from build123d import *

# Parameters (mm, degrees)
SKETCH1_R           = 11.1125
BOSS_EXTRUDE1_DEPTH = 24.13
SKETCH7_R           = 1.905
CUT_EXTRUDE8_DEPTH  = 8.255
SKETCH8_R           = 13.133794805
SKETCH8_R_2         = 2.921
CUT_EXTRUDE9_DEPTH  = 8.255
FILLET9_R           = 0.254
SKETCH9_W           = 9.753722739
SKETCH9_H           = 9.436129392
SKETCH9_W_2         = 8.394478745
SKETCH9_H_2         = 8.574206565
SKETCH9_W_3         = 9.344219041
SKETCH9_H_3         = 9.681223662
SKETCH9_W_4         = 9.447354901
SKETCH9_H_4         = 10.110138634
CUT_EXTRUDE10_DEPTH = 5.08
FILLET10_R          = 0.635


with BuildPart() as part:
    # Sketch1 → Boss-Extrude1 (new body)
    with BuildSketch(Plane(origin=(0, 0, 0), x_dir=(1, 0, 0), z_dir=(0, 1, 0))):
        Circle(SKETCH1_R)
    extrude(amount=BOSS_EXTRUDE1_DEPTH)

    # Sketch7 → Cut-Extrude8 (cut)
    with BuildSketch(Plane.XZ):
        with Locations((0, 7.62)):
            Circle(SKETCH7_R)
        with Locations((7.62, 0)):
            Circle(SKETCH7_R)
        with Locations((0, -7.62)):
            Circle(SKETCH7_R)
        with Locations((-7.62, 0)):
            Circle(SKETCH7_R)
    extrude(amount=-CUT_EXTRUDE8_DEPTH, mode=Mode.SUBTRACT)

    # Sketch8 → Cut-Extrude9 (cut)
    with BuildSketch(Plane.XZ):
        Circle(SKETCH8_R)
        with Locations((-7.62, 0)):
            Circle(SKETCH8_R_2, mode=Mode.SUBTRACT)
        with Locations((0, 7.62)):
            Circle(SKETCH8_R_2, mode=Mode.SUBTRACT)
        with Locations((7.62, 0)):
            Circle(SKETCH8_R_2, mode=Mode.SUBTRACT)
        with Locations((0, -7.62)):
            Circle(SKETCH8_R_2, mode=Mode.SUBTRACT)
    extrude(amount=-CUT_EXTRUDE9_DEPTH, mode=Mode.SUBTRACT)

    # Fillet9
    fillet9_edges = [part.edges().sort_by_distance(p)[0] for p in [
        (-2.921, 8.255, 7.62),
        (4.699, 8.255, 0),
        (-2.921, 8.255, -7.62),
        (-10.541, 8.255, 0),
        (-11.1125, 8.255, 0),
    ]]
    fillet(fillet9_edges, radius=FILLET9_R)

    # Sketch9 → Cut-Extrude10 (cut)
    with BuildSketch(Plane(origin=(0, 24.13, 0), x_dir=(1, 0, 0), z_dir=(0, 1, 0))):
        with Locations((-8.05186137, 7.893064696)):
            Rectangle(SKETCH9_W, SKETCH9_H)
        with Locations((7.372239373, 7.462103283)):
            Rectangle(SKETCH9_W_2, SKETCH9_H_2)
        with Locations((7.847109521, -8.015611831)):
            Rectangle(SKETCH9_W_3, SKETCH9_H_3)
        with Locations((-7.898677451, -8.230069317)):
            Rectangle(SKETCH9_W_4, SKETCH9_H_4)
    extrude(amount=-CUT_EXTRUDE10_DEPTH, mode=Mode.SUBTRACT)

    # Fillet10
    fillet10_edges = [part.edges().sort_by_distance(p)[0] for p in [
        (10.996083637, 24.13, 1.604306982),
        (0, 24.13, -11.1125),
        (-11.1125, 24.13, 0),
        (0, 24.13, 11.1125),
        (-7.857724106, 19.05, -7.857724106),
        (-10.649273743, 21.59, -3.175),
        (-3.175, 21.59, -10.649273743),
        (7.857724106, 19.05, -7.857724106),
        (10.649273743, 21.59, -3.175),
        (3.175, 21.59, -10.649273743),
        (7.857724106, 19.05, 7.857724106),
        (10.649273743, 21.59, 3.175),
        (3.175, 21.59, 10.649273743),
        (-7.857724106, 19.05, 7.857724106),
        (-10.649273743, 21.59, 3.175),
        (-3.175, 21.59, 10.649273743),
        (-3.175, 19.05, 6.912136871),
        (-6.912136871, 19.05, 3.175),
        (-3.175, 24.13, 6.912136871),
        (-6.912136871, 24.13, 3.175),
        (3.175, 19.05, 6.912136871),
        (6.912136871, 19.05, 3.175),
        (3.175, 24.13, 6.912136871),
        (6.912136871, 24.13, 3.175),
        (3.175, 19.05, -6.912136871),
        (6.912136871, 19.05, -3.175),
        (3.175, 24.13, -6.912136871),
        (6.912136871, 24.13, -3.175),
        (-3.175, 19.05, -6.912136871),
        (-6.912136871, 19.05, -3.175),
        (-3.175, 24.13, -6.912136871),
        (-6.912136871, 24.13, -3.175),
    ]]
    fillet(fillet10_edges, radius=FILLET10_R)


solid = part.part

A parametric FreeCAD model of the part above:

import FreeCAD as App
import Part
import Sketcher

V = App.Vector
Q = App.Units.Quantity


def edges_at(feature, points):
    """Names of the edges that pass closest to the given points."""
    edges = feature.Shape.Edges
    near = lambda p: min(range(len(edges)), key=lambda i: edges[i].distToShape(Part.Vertex(*p))[0])
    return sorted({f"Edge{near(p) + 1}" for p in points})

doc = App.newDocument("Part")
body = doc.addObject("PartDesign::Body", "Body")

# Sketch on XZ plane
sketch1 = body.newObject("Sketcher::SketchObject", "Sketch")
sketch1.AttachmentSupport = (doc.getObject("XZ_Plane"), [""])
sketch1.MapMode = "FlatFace"
sketch1.addGeometry(Part.Circle(V(0, 0, 0), V(0, 0, 1), 11), False)
sketch1.addConstraint(Sketcher.Constraint("Coincident", 0, 3, -1, 1))
sketch1.addConstraint(Sketcher.Constraint("Diameter", 0, Q("0.875 in")))
pad1 = body.newObject("PartDesign::Pad", "Pad")
pad1.Profile = sketch1
pad1.Length = Q("0.95 in")
pad1.Reversed = True

# Sketch on XZ plane
sketch2 = body.newObject("Sketcher::SketchObject", "Sketch001")
sketch2.AttachmentSupport = (doc.getObject("XZ_Plane"), [""])
sketch2.MapMode = "FlatFace"
sketch2.addGeometry(Part.Circle(V(0, 7.6, 0), V(0, 0, 1), 1.9), False)
sketch2.addGeometry(Part.Circle(V(7.6, 0, 0), V(0, 0, 1), 1.9), False)
sketch2.addGeometry(Part.Circle(V(0, -7.6, 0), V(0, 0, 1), 1.9), False)
sketch2.addGeometry(Part.Circle(V(-7.6, 0, 0), V(0, 0, 1), 1.9), False)
sketch2.addConstraint(Sketcher.Constraint("Equal", 0, 1))
sketch2.addConstraint(Sketcher.Constraint("Equal", 1, 2))
sketch2.addConstraint(Sketcher.Constraint("Equal", 2, 3))
sketch2.addConstraint(Sketcher.Constraint("Symmetric", 0, 3, 2, 3, -1, 1))
sketch2.addConstraint(Sketcher.Constraint("Symmetric", 1, 3, 3, 3, -1, 1))
sketch2.addConstraint(Sketcher.Constraint("PointOnObject", 0, 3, -2))
sketch2.addConstraint(Sketcher.Constraint("PointOnObject", 1, 3, -1))
sketch2.addConstraint(Sketcher.Constraint("Diameter", 0, Q("0.15 in")))
sketch2.addConstraint(Sketcher.Constraint("DistanceY", -1, 1, 0, 3, Q("0.3 in")))
sketch2.addConstraint(Sketcher.Constraint("DistanceX", -1, 1, 1, 3, Q("0.3 in")))
pocket1 = body.newObject("PartDesign::Pocket", "Pocket")
pocket1.Profile = sketch2
pocket1.Length = Q("0.325 in")

# Sketch on XZ plane
sketch3 = body.newObject("Sketcher::SketchObject", "Sketch002")
sketch3.AttachmentSupport = (doc.getObject("XZ_Plane"), [""])
sketch3.MapMode = "FlatFace"
sketch3.addGeometry(Part.Circle(V(0, 0, 0), V(0, 0, 1), 13.1), False)
sketch3.addGeometry(Part.Circle(V(0, -7.6, 0), V(0, 0, 1), 2.9), False)
sketch3.addGeometry(Part.Circle(V(-7.6, 0, 0), V(0, 0, 1), 2.9), False)
sketch3.addGeometry(Part.Circle(V(7.6, 0, 0), V(0, 0, 1), 2.9), False)
sketch3.addGeometry(Part.Circle(V(0, 7.6, 0), V(0, 0, 1), 2.9), False)
sketch3.addConstraint(Sketcher.Constraint("Coincident", 0, 3, -1, 1))
sketch3.addConstraint(Sketcher.Constraint("Equal", 1, 2))
sketch3.addConstraint(Sketcher.Constraint("Equal", 2, 3))
sketch3.addConstraint(Sketcher.Constraint("Equal", 3, 4))
sketch3.addConstraint(Sketcher.Constraint("Symmetric", 2, 3, 3, 3, -1, 1))
sketch3.addConstraint(Sketcher.Constraint("Symmetric", 1, 3, 4, 3, -1, 1))
sketch3.addConstraint(Sketcher.Constraint("PointOnObject", 1, 3, -2))
sketch3.addConstraint(Sketcher.Constraint("PointOnObject", 2, 3, -1))
sketch3.addConstraint(Sketcher.Constraint("Diameter", 1, Q("0.23 in")))
sketch3.addConstraint(Sketcher.Constraint("DistanceY", 1, 3, -1, 1, Q("0.3 in")))
sketch3.addConstraint(Sketcher.Constraint("DistanceX", 2, 3, -1, 1, Q("0.3 in")))
sketch3.addConstraint(Sketcher.Constraint("Diameter", 0, Q("26.26759 mm")))
pocket2 = body.newObject("PartDesign::Pocket", "Pocket001")
pocket2.Profile = sketch3
pocket2.Length = Q("0.325 in")
doc.recompute()

fillet = body.newObject("PartDesign::Fillet", "Fillet")
fillet.Base = (pocket2, edges_at(pocket2, [
    (-2.921, 8.255, 7.62),
    (4.699, 8.255, 0),
    (-2.921, 8.255, -7.62),
    (-10.541, 8.255, 0),
    (-11.113, 8.255, 0),
]))
fillet.Radius = Q("0.01 in")

# Sketch on XZ plane
sketch4 = body.newObject("Sketcher::SketchObject", "Sketch003")
sketch4.AttachmentSupport = (doc.getObject("XZ_Plane"), [""])
sketch4.MapMode = "FlatFace"
sketch4.AttachmentOffset = App.Placement(V(0, 0, -0.95 * 25.4), App.Rotation())
sketch4.addGeometry(Part.LineSegment(V(-13, -13, 0), V(-13, -3, 0)), False)
sketch4.addGeometry(Part.LineSegment(V(-13, -3, 0), V(-3, -3, 0)), False)
sketch4.addGeometry(Part.LineSegment(V(-3, -3, 0), V(-3, -13, 0)), False)
sketch4.addGeometry(Part.LineSegment(V(-3, -13, 0), V(-13, -13, 0)), False)
sketch4.addGeometry(Part.LineSegment(V(3, -12, 0), V(3, -3, 0)), False)
sketch4.addGeometry(Part.LineSegment(V(3, -3, 0), V(12, -3, 0)), False)
sketch4.addGeometry(Part.LineSegment(V(12, -3, 0), V(12, -12, 0)), False)
sketch4.addGeometry(Part.LineSegment(V(12, -12, 0), V(3, -12, 0)), False)
sketch4.addGeometry(Part.LineSegment(V(3, 3, 0), V(3, 13, 0)), False)
sketch4.addGeometry(Part.LineSegment(V(3, 13, 0), V(13, 13, 0)), False)
sketch4.addGeometry(Part.LineSegment(V(13, 13, 0), V(13, 3, 0)), False)
sketch4.addGeometry(Part.LineSegment(V(13, 3, 0), V(3, 3, 0)), False)
sketch4.addGeometry(Part.LineSegment(V(-13, 3, 0), V(-13, 13, 0)), False)
sketch4.addGeometry(Part.LineSegment(V(-13, 13, 0), V(-3, 13, 0)), False)
sketch4.addGeometry(Part.LineSegment(V(-3, 13, 0), V(-3, 3, 0)), False)
sketch4.addGeometry(Part.LineSegment(V(-3, 3, 0), V(-13, 3, 0)), False)
sketch4.addConstraint(Sketcher.Constraint("Coincident", 0, 2, 1, 1))
sketch4.addConstraint(Sketcher.Constraint("Coincident", 1, 2, 2, 1))
sketch4.addConstraint(Sketcher.Constraint("Coincident", 2, 2, 3, 1))
sketch4.addConstraint(Sketcher.Constraint("Coincident", 3, 2, 0, 1))
sketch4.addConstraint(Sketcher.Constraint("Coincident", 4, 2, 5, 1))
sketch4.addConstraint(Sketcher.Constraint("Coincident", 5, 2, 6, 1))
sketch4.addConstraint(Sketcher.Constraint("Coincident", 6, 2, 7, 1))
sketch4.addConstraint(Sketcher.Constraint("Coincident", 7, 2, 4, 1))
sketch4.addConstraint(Sketcher.Constraint("Coincident", 8, 2, 9, 1))
sketch4.addConstraint(Sketcher.Constraint("Coincident", 9, 2, 10, 1))
sketch4.addConstraint(Sketcher.Constraint("Coincident", 10, 2, 11, 1))
sketch4.addConstraint(Sketcher.Constraint("Coincident", 11, 2, 8, 1))
sketch4.addConstraint(Sketcher.Constraint("Coincident", 12, 2, 13, 1))
sketch4.addConstraint(Sketcher.Constraint("Coincident", 13, 2, 14, 1))
sketch4.addConstraint(Sketcher.Constraint("Coincident", 14, 2, 15, 1))
sketch4.addConstraint(Sketcher.Constraint("Coincident", 15, 2, 12, 1))
sketch4.addConstraint(Sketcher.Constraint("Vertical", 0))
sketch4.addConstraint(Sketcher.Constraint("Horizontal", 1))
sketch4.addConstraint(Sketcher.Constraint("Vertical", 2))
sketch4.addConstraint(Sketcher.Constraint("Horizontal", 3))
sketch4.addConstraint(Sketcher.Constraint("Vertical", 4))
sketch4.addConstraint(Sketcher.Constraint("Horizontal", 5))
sketch4.addConstraint(Sketcher.Constraint("Vertical", 6))
sketch4.addConstraint(Sketcher.Constraint("Horizontal", 7))
sketch4.addConstraint(Sketcher.Constraint("Vertical", 8))
sketch4.addConstraint(Sketcher.Constraint("Horizontal", 9))
sketch4.addConstraint(Sketcher.Constraint("Vertical", 10))
sketch4.addConstraint(Sketcher.Constraint("Horizontal", 11))
sketch4.addConstraint(Sketcher.Constraint("Vertical", 12))
sketch4.addConstraint(Sketcher.Constraint("Horizontal", 13))
sketch4.addConstraint(Sketcher.Constraint("Vertical", 14))
sketch4.addConstraint(Sketcher.Constraint("Horizontal", 15))
sketch4.addConstraint(Sketcher.Constraint("Symmetric", 1, 2, 11, 2, -1, 1))
sketch4.addConstraint(Sketcher.Constraint("Symmetric", 4, 2, 14, 2, -1, 1))
sketch4.addConstraint(Sketcher.Constraint("Symmetric", 1, 2, 4, 2, -2))
sketch4.addConstraint(Sketcher.Constraint("DistanceX", 1, 2, 4, 2, Q("0.25 in")))
sketch4.addConstraint(Sketcher.Constraint("DistanceY", 5, 2, 10, 2, Q("0.25 in")))
sketch4.addConstraint(Sketcher.Constraint("DistanceX", 5, 1, 5, 2, Q("8.394479 mm")))
sketch4.addConstraint(Sketcher.Constraint("DistanceX", 9, 1, 9, 2, Q("9.344219 mm")))
sketch4.addConstraint(Sketcher.Constraint("DistanceY", 0, 1, 0, 2, Q("9.436129 mm")))
sketch4.addConstraint(Sketcher.Constraint("DistanceY", 12, 1, 12, 2, Q("10.110139 mm")))
sketch4.addConstraint(Sketcher.Constraint("DistanceX", 0, 2, 5, 2, Q("24.498201 mm")))
sketch4.addConstraint(Sketcher.Constraint("DistanceX", 13, 1, 13, 2, Q("9.447355 mm")))
sketch4.addConstraint(Sketcher.Constraint("DistanceY", 4, 1, 4, 2, Q("8.574207 mm")))
sketch4.addConstraint(Sketcher.Constraint("DistanceY", 8, 1, 8, 2, Q("9.681224 mm")))
pocket3 = body.newObject("PartDesign::Pocket", "Pocket002")
pocket3.Profile = sketch4
pocket3.Length = Q("0.2 in")
pocket3.Reversed = True
doc.recompute()

fillet2 = body.newObject("PartDesign::Fillet", "Fillet001")
fillet2.Base = (pocket3, edges_at(pocket3, [
    (10.996, 24.13, 1.604),
    (0, 24.13, -11.113),
    (-11.113, 24.13, 0),
    (0, 24.13, 11.113),
    (-7.858, 19.05, -7.858),
    (-10.649, 21.59, -3.175),
    (-3.175, 21.59, -10.649),
    (7.858, 19.05, -7.858),
    (10.649, 21.59, -3.175),
    (3.175, 21.59, -10.649),
    (7.858, 19.05, 7.858),
    (10.649, 21.59, 3.175),
    (3.175, 21.59, 10.649),
    (-7.858, 19.05, 7.858),
    (-10.649, 21.59, 3.175),
    (-3.175, 21.59, 10.649),
    (-3.175, 19.05, 6.912),
    (-6.912, 19.05, 3.175),
    (-3.175, 24.13, 6.912),
    (-6.912, 24.13, 3.175),
    (3.175, 19.05, 6.912),
    (6.912, 19.05, 3.175),
    (3.175, 24.13, 6.912),
    (6.912, 24.13, 3.175),
    (3.175, 19.05, -6.912),
    (6.912, 19.05, -3.175),
    (3.175, 24.13, -6.912),
    (6.912, 24.13, -3.175),
    (-3.175, 19.05, -6.912),
    (-6.912, 19.05, -3.175),
    (-3.175, 24.13, -6.912),
    (-6.912, 24.13, -3.175),
]))
fillet2.Radius = Q("0.025 in")

doc.recompute()
